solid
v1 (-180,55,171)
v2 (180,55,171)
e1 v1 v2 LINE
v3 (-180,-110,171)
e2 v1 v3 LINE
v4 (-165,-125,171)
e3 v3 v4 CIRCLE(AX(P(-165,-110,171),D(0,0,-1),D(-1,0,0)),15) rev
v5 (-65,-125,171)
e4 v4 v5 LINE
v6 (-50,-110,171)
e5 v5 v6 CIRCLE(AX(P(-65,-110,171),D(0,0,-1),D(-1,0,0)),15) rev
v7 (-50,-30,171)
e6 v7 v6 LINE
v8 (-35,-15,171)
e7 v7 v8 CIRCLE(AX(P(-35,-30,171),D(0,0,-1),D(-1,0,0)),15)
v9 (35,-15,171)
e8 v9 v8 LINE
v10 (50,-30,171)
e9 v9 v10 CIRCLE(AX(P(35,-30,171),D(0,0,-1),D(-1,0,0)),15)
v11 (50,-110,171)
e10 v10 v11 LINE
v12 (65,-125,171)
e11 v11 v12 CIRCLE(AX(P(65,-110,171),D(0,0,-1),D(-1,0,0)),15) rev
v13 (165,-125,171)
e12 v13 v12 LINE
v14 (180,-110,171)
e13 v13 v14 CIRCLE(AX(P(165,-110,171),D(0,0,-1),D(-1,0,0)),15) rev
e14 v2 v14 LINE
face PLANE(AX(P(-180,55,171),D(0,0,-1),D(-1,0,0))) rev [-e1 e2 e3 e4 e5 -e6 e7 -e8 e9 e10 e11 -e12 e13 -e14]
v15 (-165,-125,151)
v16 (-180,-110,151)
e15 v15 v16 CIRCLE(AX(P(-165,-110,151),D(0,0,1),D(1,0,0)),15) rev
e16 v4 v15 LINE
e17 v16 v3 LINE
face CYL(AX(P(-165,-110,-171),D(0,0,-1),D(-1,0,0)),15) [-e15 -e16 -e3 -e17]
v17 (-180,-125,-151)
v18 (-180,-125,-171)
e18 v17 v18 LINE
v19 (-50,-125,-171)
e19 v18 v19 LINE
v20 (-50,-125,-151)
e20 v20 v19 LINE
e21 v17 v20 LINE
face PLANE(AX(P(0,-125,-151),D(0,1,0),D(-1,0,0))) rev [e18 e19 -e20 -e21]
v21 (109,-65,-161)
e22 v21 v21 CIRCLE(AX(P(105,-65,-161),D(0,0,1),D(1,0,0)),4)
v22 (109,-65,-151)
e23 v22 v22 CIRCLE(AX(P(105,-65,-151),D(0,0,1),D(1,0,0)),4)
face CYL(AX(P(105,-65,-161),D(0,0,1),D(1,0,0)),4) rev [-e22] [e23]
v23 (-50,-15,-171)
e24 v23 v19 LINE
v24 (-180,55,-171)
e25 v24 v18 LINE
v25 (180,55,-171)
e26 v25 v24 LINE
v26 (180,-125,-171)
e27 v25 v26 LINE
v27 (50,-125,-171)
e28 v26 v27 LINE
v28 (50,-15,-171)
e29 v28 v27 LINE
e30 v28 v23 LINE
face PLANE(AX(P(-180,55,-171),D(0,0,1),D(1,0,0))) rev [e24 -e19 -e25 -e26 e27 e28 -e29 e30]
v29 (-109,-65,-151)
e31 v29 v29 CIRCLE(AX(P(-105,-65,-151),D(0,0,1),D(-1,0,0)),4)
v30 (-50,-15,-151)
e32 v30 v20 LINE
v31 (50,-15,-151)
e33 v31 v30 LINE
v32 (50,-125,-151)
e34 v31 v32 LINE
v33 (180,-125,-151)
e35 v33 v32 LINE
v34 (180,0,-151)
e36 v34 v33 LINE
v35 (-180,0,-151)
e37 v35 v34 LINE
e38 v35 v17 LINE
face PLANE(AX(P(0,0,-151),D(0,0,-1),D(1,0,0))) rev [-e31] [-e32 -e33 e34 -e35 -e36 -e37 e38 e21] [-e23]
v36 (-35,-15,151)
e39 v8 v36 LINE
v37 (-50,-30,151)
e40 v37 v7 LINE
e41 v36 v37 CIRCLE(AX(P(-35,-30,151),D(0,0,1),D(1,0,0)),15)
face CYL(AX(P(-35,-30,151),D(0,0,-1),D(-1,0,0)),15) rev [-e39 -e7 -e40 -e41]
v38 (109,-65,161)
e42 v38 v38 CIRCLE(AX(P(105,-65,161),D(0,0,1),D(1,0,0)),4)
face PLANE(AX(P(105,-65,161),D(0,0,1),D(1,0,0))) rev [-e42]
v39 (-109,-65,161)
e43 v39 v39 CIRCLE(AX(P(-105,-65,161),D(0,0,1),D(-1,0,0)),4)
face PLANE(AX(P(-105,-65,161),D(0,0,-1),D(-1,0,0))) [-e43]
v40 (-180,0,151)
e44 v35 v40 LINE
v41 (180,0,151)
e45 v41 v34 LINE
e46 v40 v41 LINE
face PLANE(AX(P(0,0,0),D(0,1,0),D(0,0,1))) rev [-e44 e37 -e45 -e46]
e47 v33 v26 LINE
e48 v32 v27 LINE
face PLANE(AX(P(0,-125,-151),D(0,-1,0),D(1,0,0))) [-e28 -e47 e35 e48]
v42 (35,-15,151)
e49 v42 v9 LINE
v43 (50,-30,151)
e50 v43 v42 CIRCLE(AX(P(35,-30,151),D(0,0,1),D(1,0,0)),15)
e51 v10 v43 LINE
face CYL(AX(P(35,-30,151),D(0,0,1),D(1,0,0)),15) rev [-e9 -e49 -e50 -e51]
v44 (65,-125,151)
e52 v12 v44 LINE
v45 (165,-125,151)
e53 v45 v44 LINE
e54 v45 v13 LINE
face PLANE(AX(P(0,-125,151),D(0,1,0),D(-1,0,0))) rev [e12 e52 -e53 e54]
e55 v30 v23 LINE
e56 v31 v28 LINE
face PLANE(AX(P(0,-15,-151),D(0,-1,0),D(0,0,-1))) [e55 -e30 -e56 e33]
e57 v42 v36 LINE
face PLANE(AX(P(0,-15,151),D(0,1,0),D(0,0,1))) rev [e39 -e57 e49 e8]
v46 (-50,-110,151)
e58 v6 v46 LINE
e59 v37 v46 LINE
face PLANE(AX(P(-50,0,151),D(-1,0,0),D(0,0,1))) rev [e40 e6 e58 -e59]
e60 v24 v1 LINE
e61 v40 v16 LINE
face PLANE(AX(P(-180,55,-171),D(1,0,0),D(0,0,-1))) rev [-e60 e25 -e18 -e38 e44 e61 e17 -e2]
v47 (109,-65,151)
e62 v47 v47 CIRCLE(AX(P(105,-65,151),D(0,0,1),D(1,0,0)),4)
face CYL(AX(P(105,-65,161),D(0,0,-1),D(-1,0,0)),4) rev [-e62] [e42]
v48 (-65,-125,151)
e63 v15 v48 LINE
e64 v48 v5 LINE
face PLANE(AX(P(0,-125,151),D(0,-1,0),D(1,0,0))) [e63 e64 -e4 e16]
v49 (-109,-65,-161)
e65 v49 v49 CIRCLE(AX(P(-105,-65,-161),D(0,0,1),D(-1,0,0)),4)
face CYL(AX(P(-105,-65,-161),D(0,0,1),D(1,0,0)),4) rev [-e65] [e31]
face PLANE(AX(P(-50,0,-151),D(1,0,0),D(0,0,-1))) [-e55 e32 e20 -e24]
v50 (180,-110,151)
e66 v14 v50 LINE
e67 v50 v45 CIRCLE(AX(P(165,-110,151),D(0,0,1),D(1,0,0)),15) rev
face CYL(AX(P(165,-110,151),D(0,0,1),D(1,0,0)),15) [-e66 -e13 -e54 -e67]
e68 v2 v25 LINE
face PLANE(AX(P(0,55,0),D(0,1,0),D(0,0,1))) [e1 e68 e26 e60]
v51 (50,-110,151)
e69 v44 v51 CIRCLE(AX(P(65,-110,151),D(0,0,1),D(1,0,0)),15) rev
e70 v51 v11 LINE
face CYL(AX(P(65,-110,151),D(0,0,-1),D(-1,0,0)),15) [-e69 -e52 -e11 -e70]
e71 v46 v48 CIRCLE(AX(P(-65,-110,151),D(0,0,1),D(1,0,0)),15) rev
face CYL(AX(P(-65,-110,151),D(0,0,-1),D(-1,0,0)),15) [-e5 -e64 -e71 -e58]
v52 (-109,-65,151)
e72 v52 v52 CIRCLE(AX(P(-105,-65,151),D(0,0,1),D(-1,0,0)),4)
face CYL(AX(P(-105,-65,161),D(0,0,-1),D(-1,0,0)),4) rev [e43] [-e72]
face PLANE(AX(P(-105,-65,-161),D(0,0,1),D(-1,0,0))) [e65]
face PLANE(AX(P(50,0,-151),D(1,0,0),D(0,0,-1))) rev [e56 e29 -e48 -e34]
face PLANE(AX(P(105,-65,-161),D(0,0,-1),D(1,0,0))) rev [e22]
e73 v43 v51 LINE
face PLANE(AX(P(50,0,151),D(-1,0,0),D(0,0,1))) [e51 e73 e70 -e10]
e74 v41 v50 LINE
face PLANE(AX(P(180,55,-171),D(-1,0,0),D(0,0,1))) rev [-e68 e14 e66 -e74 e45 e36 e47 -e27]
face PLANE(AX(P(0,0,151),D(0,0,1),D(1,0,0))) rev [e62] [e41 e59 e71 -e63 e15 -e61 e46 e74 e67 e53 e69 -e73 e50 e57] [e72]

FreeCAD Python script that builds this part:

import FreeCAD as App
import Part
import Sketcher
from FreeCAD import Vector


def edges_at(feature, points):
    """Names of the edges that pass closest to the given points."""
    edges = feature.Shape.Edges
    near = lambda p: min(range(len(edges)), key=lambda i: edges[i].distToShape(Part.Vertex(*p))[0])
    return sorted({f"Edge{near(p) + 1}" for p in points})

doc = App.newDocument("Part")
body = doc.addObject("PartDesign::Body", "Body")

# Sketch on XZ plane
sketch1 = body.newObject("Sketcher::SketchObject", "Sketch")
sketch1.AttachmentSupport = (doc.getObject("XZ_Plane"), [""])
sketch1.MapMode = "FlatFace"
sketch1.addGeometry(Part.LineSegment(Vector(-180, -171, 0), Vector(-180, 171, 0)), False)
sketch1.addGeometry(Part.LineSegment(Vector(-180, 171, 0), Vector(180, 171, 0)), False)
sketch1.addGeometry(Part.LineSegment(Vector(180, 171, 0), Vector(180, -171, 0)), False)
sketch1.addGeometry(Part.LineSegment(Vector(180, -171, 0), Vector(-180, -171, 0)), False)
sketch1.addConstraint(Sketcher.Constraint("Coincident", 0, 2, 1, 1))
sketch1.addConstraint(Sketcher.Constraint("Coincident", 1, 2, 2, 1))
sketch1.addConstraint(Sketcher.Constraint("Coincident", 2, 2, 3, 1))
sketch1.addConstraint(Sketcher.Constraint("Coincident", 3, 2, 0, 1))
sketch1.addConstraint(Sketcher.Constraint("Vertical", 0))
sketch1.addConstraint(Sketcher.Constraint("Horizontal", 1))
sketch1.addConstraint(Sketcher.Constraint("Vertical", 2))
sketch1.addConstraint(Sketcher.Constraint("Horizontal", 3))
sketch1.addConstraint(Sketcher.Constraint("Symmetric", 0, 2, 2, 2, -1, 1))
sketch1.addConstraint(Sketcher.Constraint("DistanceX", 1, 1, 1, 2, 360.0))
sketch1.addConstraint(Sketcher.Constraint("DistanceY", 0, 1, 0, 2, 342.0))
pad1 = body.newObject("PartDesign::Pad", "Pad")
pad1.Profile = sketch1
pad1.Length = 55
pad1.Reversed = True

# Sketch on XY plane
sketch2 = body.newObject("Sketcher::SketchObject", "Sketch001")
sketch2.AttachmentSupport = (doc.getObject("XY_Plane"), [""])
sketch2.MapMode = "FlatFace"
sketch2.AttachmentOffset = App.Placement(Vector(0, 0, 171), App.Rotation())
sketch2.addGeometry(Part.LineSegment(Vector(180, 0, 0), Vector(-180, 0, 0)), False)
sketch2.addGeometry(Part.LineSegment(Vector(-180, 0, 0), Vector(-180, -125, 0)), False)
sketch2.addGeometry(Part.LineSegment(Vector(-180, -125, 0), Vector(-50, -125, 0)), False)
sketch2.addGeometry(Part.LineSegment(Vector(-50, -125, 0), Vector(-50, -15, 0)), False)
sketch2.addGeometry(Part.LineSegment(Vector(-50, -15, 0), Vector(50, -15, 0)), False)
sketch2.addGeometry(Part.LineSegment(Vector(50, -15, 0), Vector(50, -125, 0)), False)
sketch2.addGeometry(Part.LineSegment(Vector(50, -125, 0), Vector(180, -125, 0)), False)
sketch2.addGeometry(Part.LineSegment(Vector(180, -125, 0), Vector(180, 0, 0)), False)
sketch2.addConstraint(Sketcher.Constraint("Coincident", 0, 2, 1, 1))
sketch2.addConstraint(Sketcher.Constraint("Coincident", 1, 2, 2, 1))
sketch2.addConstraint(Sketcher.Constraint("Coincident", 2, 2, 3, 1))
sketch2.addConstraint(Sketcher.Constraint("Coincident", 3, 2, 4, 1))
sketch2.addConstraint(Sketcher.Constraint("Coincident", 4, 2, 5, 1))
sketch2.addConstraint(Sketcher.Constraint("Coincident", 5, 2, 6, 1))
sketch2.addConstraint(Sketcher.Constraint("Coincident", 6, 2, 7, 1))
sketch2.addConstraint(Sketcher.Constraint("Coincident", 7, 2, 0, 1))
sketch2.addConstraint(Sketcher.Constraint("Horizontal", 0))
sketch2.addConstraint(Sketcher.Constraint("Vertical", 1))
sketch2.addConstraint(Sketcher.Constraint("Horizontal", 2))
sketch2.addConstraint(Sketcher.Constraint("Vertical", 3))
sketch2.addConstraint(Sketcher.Constraint("Horizontal", 4))
sketch2.addConstraint(Sketcher.Constraint("Vertical", 5))
sketch2.addConstraint(Sketcher.Constraint("Horizontal", 6))
sketch2.addConstraint(Sketcher.Constraint("Vertical", 7))
sketch2.addConstraint(Sketcher.Constraint("Symmetric", 0, 2, 7, 2, -1, 1))
sketch2.addConstraint(Sketcher.Constraint("Symmetric", 2, 2, 5, 2, -2))
sketch2.addConstraint(Sketcher.Constraint("DistanceX", 0, 2, 0, 1, 360.0))
sketch2.addConstraint(Sketcher.Constraint("DistanceX", 2, 1, 2, 2, 130.0))
sketch2.addConstraint(Sketcher.Constraint("DistanceY", 1, 2, 1, 1, 125.0))
sketch2.addConstraint(Sketcher.Constraint("DistanceY", 3, 1, 3, 2, 110.0))
pad2 = body.newObject("PartDesign::Pad", "Pad001")
pad2.Profile = sketch2
pad2.Length = 20
pad2.Reversed = True

# Sketch on XY plane
sketch3 = body.newObject("Sketcher::SketchObject", "Sketch002")
sketch3.AttachmentSupport = (doc.getObject("XY_Plane"), [""])
sketch3.MapMode = "FlatFace"
sketch3.AttachmentOffset = App.Placement(Vector(0, 0, 151), App.Rotation())
sketch3.addGeometry(Part.Circle(Vector(105, -65, 0), Vector(0, 0, 1), 4), False)
sketch3.addGeometry(Part.Circle(Vector(-105, -65, 0), Vector(0, 0, 1), 4), False)
sketch3.addConstraint(Sketcher.Constraint("Equal", 0, 1))
sketch3.addConstraint(Sketcher.Constraint("Symmetric", 0, 3, 1, 3, -2))
sketch3.addConstraint(Sketcher.Constraint("Diameter", 0, 8.0))
sketch3.addConstraint(Sketcher.Constraint("DistanceX", -1, 1, 0, 3, 105.0))
sketch3.addConstraint(Sketcher.Constraint("DistanceY", 0, 3, -1, 1, 65.0))
pocket1 = body.newObject("PartDesign::Pocket", "Pocket")
pocket1.Profile = sketch3
pocket1.Length = 10
pocket1.Reversed = True
doc.recompute()

fillet = body.newObject("PartDesign::Fillet", "Fillet")
fillet.Base = (pocket1, edges_at(pocket1, [
    (180, -125, 161),
    (50, -125, 161),
    (50, -15, 161),
    (-50, -15, 161),
    (-50, -125, 161),
    (-180, -125, 161),
]))
fillet.Radius = 15
doc.recompute()

mirrored = body.newObject("PartDesign::Mirrored", "Mirrored")
mirrored.Originals = [pad2, pocket1]
mirrored.MirrorPlane = (doc.getObject("XY_Plane"), [""])
body.Tip = mirrored

doc.recompute()
